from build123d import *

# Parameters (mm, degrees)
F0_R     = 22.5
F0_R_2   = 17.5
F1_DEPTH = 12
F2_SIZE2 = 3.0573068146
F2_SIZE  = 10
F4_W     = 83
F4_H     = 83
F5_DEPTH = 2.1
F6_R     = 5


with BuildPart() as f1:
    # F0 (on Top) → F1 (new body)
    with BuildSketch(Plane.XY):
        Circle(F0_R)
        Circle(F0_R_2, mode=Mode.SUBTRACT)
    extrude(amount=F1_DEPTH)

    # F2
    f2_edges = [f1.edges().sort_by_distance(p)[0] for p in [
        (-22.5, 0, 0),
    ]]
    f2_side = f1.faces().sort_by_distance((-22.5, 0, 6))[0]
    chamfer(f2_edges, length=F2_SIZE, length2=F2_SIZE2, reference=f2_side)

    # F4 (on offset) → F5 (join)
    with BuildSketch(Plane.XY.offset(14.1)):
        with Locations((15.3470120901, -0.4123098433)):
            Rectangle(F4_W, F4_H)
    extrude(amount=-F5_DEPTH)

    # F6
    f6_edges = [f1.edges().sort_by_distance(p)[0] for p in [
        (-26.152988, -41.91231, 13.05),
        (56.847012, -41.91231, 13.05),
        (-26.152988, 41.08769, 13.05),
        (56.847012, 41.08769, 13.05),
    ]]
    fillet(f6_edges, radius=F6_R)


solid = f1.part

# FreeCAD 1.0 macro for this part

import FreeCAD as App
import Part
import Sketcher


def edges_at(feature, points):
    """Names of the edges that pass closest to the given points."""
    edges = feature.Shape.Edges
    near = lambda p: min(range(len(edges)), key=lambda i: edges[i].distToShape(Part.Vertex(*p))[0])
    return sorted({f"Edge{near(p) + 1}" for p in points})

doc = App.newDocument("Part")
params = doc.addObject("Spreadsheet::Sheet", "Params")
for row, (alias, value) in enumerate([
    ("sketch1_diameter", "45 mm"),
    ("sketch1_diameter2", "35 mm"),
    ("pad1_length", "12 mm"),
    ("chamfer_size", "10 mm"),
    ("chamfer_size2", "3.057307 mm"),
    ("sketch2_width", "83 mm"),
    ("pad2_length", "2.1 mm"),
    ("fillet_radius", "5 mm"),
], start=1):
    params.set(f"A{row}", alias)
    params.set(f"B{row}", "=" + value)
    params.setAlias(f"B{row}", alias)

body = doc.addObject("PartDesign::Body", "Body")

# Sketch on XY plane
sketch1 = body.newObject("Sketcher::SketchObject", "Sketch")
sketch1.AttachmentSupport = (doc.getObject("XY_Plane"), [""])
sketch1.MapMode = "FlatFace"
sketch1.addGeometry([
    Part.Circle(App.Vector(0, 0, 0), App.Vector(0, 0, 1), 22),
    Part.Circle(App.Vector(0, 0, 0), App.Vector(0, 0, 1), 18),
], False)
sketch1.addConstraint([
    Sketcher.Constraint("Coincident", 0, 3, -1, 1),
    Sketcher.Constraint("Coincident", 1, 3, -1, 1),
    Sketcher.Constraint("Diameter", 0, 45.0),
    Sketcher.Constraint("Diameter", 1, 35.0),
])
sketch1.setExpression("Constraints[2]", "Params.sketch1_diameter")
sketch1.setExpression("Constraints[3]", "Params.sketch1_diameter2")
pad1 = body.newObject("PartDesign::Pad", "Pad")
pad1.Profile = sketch1
pad1.setExpression("Length", "Params.pad1_length")
doc.recompute()

chamfer = body.newObject("PartDesign::Chamfer", "Chamfer")
chamfer.Base = (pad1, edges_at(pad1, [(-22.5, 0, 0)]))
chamfer.ChamferType = "Two distances"
chamfer.setExpression("Size", "Params.chamfer_size")
chamfer.setExpression("Size2", "Params.chamfer_size2")

# Sketch on XY plane
sketch2 = body.newObject("Sketcher::SketchObject", "Sketch001")
sketch2.AttachmentSupport = (doc.getObject("XY_Plane"), [""])
sketch2.MapMode = "FlatFace"
sketch2.AttachmentOffset = App.Placement(App.Vector(0, 0, 14.1), App.Rotation())
sketch2.addGeometry([
    Part.LineSegment(App.Vector(-26, 41, 0), App.Vector(-26, -42, 0)),
    Part.LineSegment(App.Vector(-26, -42, 0), App.Vector(57, -42, 0)),
    Part.LineSegment(App.Vector(57, -42, 0), App.Vector(57, 41, 0)),
    Part.LineSegment(App.Vector(57, 41, 0), App.Vector(-26, 41, 0)),
], False)
sketch2.addConstraint([
    Sketcher.Constraint("Coincident", 0, 2, 1, 1),
    Sketcher.Constraint("Coincident", 1, 2, 2, 1),
    Sketcher.Constraint("Coincident", 2, 2, 3, 1),
    Sketcher.Constraint("Coincident", 3, 2, 0, 1),
    Sketcher.Constraint("Vertical", 0),
    Sketcher.Constraint("Horizontal", 1),
    Sketcher.Constraint("Vertical", 2),
    Sketcher.Constraint("Horizontal", 3),
    Sketcher.Constraint("Equal", 3, 0),
    Sketcher.Constraint("DistanceX", 1, 1, 1, 2, 83.0),
    Sketcher.Constraint("DistanceY", 0, 2, -1, 1, 41.91231),
    Sketcher.Constraint("DistanceX", 0, 2, -1, 1, 26.152988),
])
sketch2.setExpression("Constraints[9]", "Params.sketch2_width")
pad2 = body.newObject("PartDesign::Pad", "Pad001")
pad2.Profile = sketch2
pad2.setExpression("Length", "Params.pad2_length")
pad2.Reversed = True
doc.recompute()

fillet = body.newObject("PartDesign::Fillet", "Fillet")
fillet.Base = (pad2, edges_at(pad2, [
    (-26.153, -41.912, 13.05),
    (56.847, -41.912, 13.05),
    (-26.153, 41.088, 13.05),
    (56.847, 41.088, 13.05),
]))
fillet.setExpression("Radius", "Params.fillet_radius")

doc.recompute()
